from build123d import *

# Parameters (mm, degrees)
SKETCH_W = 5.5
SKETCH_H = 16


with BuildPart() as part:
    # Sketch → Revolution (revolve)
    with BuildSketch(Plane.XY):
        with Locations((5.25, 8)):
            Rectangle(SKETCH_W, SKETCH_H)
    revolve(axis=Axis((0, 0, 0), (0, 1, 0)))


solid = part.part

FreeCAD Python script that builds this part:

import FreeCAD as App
import Part
import Sketcher

V = App.Vector

doc = App.newDocument("Part")
body = doc.addObject("PartDesign::Body", "Body")

# Sketch on XY plane
sketch1 = body.newObject("Sketcher::SketchObject", "Sketch")
sketch1.AttachmentSupport = (doc.getObject("XY_Plane"), [""])
sketch1.MapMode = "FlatFace"
sketch1.addGeometry([
    Part.LineSegment(V(2, 16, 0), V(2, 0, 0)),
    Part.LineSegment(V(2, 0, 0), V(8, 0, 0)),
    Part.LineSegment(V(8, 0, 0), V(8, 16, 0)),
    Part.LineSegment(V(8, 16, 0), V(2, 16, 0)),
], False)
sketch1.addConstraint([
    Sketcher.Constraint("Coincident", 0, 2, 1, 1),
    Sketcher.Constraint("Coincident", 1, 2, 2, 1),
    Sketcher.Constraint("Coincident", 2, 2, 3, 1),
    Sketcher.Constraint("Coincident", 3, 2, 0, 1),
    Sketcher.Constraint("Vertical", 0),
    Sketcher.Constraint("Horizontal", 1),
    Sketcher.Constraint("Vertical", 2),
    Sketcher.Constraint("Horizontal", 3),
    Sketcher.Constraint("PointOnObject", 0, 2, -1),
    Sketcher.Constraint("DistanceY", 0, 2, 0, 1, 16.0),
    Sketcher.Constraint("DistanceX", 1, 1, 1, 2, 5.5),
    Sketcher.Constraint("DistanceX", -1, 1, 1, 2, 8.0),
])
revolution = body.newObject("PartDesign::Revolution", "Revolution")
revolution.Profile = sketch1
revolution.ReferenceAxis = (sketch1, ["V_Axis"])
revolution.Angle = 360

doc.recompute()
